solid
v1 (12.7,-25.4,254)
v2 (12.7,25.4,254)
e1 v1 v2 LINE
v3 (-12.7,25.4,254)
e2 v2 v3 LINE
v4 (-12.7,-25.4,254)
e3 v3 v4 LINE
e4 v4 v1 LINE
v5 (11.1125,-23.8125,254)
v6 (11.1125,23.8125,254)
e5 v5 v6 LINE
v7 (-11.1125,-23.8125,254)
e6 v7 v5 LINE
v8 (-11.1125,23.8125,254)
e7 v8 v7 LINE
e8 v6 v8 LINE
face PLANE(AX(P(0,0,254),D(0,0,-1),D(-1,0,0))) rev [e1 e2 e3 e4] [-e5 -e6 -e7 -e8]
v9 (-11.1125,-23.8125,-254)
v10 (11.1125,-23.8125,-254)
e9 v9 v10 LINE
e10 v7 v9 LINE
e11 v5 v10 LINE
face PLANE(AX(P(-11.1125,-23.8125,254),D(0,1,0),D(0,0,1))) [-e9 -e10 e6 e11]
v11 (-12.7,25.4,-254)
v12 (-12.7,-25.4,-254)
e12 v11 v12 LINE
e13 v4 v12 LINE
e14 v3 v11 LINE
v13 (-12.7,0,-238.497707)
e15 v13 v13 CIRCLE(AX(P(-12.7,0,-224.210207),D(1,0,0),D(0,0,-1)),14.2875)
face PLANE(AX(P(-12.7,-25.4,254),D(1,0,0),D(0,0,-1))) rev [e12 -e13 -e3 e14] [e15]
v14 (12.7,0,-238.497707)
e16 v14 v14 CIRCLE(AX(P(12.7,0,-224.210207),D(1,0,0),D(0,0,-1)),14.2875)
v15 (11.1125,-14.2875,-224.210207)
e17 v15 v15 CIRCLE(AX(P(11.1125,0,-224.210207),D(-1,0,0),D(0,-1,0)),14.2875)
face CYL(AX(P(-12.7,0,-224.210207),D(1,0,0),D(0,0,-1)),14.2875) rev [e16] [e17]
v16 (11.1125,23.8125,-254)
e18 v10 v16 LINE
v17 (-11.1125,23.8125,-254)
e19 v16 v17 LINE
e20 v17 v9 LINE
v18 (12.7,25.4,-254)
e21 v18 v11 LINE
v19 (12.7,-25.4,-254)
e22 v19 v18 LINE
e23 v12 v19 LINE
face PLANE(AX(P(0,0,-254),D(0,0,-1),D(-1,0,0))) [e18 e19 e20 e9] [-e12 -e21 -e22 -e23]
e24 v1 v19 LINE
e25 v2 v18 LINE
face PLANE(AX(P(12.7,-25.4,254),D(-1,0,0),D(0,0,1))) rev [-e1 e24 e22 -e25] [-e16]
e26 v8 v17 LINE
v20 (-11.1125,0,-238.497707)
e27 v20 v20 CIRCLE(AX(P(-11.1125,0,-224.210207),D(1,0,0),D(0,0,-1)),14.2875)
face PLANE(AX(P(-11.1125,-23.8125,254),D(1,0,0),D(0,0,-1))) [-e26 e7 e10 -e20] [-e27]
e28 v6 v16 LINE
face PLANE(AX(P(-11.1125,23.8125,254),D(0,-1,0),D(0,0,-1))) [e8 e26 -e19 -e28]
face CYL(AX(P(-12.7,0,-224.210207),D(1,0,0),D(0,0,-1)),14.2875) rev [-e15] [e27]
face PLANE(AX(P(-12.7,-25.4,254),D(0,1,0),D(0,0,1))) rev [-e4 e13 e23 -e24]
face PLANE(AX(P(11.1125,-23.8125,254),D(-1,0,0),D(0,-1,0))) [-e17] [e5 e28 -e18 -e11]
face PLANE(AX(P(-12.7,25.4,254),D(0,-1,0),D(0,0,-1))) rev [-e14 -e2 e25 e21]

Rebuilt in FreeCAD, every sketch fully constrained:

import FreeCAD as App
import Part
import Sketcher
Q = App.Units.Quantity

doc = App.newDocument("Part")
body = doc.addObject("PartDesign::Body", "Body")

# Sketch on XY plane
sketch1 = doc.addObject("Sketcher::SketchObject", "Sketch")
body.addObject(sketch1)
sketch1.AttachmentSupport = (doc.XY_Plane, [""])
sketch1.MapMode = "FlatFace"
sketch1.addGeometry([
    Part.LineSegment(App.Vector(-13, 25, 0), App.Vector(-13, -25, 0)),  # 0
    Part.LineSegment(App.Vector(-13, -25, 0), App.Vector(13, -25, 0)),  # 1
    Part.LineSegment(App.Vector(13, -25, 0), App.Vector(13, 25, 0)),  # 2
    Part.LineSegment(App.Vector(13, 25, 0), App.Vector(-13, 25, 0)),  # 3
    Part.LineSegment(App.Vector(11, -24, 0), App.Vector(-11, -24, 0)),  # 4
    Part.LineSegment(App.Vector(-11, -24, 0), App.Vector(-11, 24, 0)),  # 5
    Part.LineSegment(App.Vector(-11, 24, 0), App.Vector(11, 24, 0)),  # 6
    Part.LineSegment(App.Vector(11, 24, 0), App.Vector(11, -24, 0)),  # 7
], False)
sketch1.addConstraint([
    Sketcher.Constraint("Coincident", 0, 2, 1, 1),
    Sketcher.Constraint("Coincident", 1, 2, 2, 1),
    Sketcher.Constraint("Coincident", 2, 2, 3, 1),
    Sketcher.Constraint("Coincident", 3, 2, 0, 1),
    Sketcher.Constraint("Coincident", 4, 2, 5, 1),
    Sketcher.Constraint("Coincident", 5, 2, 6, 1),
    Sketcher.Constraint("Coincident", 6, 2, 7, 1),
    Sketcher.Constraint("Coincident", 7, 2, 4, 1),
    Sketcher.Constraint("Vertical", 0),
    Sketcher.Constraint("Horizontal", 1),
    Sketcher.Constraint("Vertical", 2),
    Sketcher.Constraint("Horizontal", 3),
    Sketcher.Constraint("Horizontal", 4),
    Sketcher.Constraint("Vertical", 5),
    Sketcher.Constraint("Horizontal", 6),
    Sketcher.Constraint("Vertical", 7),
    Sketcher.Constraint("Symmetric", 0, 2, 2, 2, -1, 1),
    Sketcher.Constraint("Symmetric", 4, 2, 6, 2, -1, 1),
    Sketcher.Constraint("DistanceX", 1, 1, 1, 2, Q("1 in")),
    Sketcher.Constraint("DistanceY", 0, 2, 0, 1, Q("2 in")),
    Sketcher.Constraint("DistanceX", 4, 2, 4, 1, Q("0.875 in")),
    Sketcher.Constraint("DistanceY", 5, 1, 5, 2, Q("1.875 in")),
])
pad1 = doc.addObject("PartDesign::Pad", "Pad")
body.addObject(pad1)
pad1.Profile = sketch1
pad1.Length = Q("20 in")
pad1.Midplane = True

# Sketch on YZ plane
sketch2 = doc.addObject("Sketcher::SketchObject", "Sketch001")
body.addObject(sketch2)
sketch2.AttachmentSupport = (doc.YZ_Plane, [""])
sketch2.MapMode = "FlatFace"
sketch2.AttachmentOffset = App.Placement(App.Vector(0, 0, 0.5 * 25.4), App.Rotation())
sketch2.addGeometry(Part.Circle(App.Vector(0, -224, 0), App.Vector(0, 0, 1), 14), False)
sketch2.addConstraint([
    Sketcher.Constraint("PointOnObject", 0, 3, -2),
    Sketcher.Constraint("Diameter", 0, Q("1.125 in")),
    Sketcher.Constraint("DistanceY", 0, 3, -1, 1, 224.210207),
])
pocket1 = doc.addObject("PartDesign::Pocket", "Pocket")
body.addObject(pocket1)
pocket1.Profile = sketch2
pocket1.Type = "ThroughAll"

doc.recompute()
